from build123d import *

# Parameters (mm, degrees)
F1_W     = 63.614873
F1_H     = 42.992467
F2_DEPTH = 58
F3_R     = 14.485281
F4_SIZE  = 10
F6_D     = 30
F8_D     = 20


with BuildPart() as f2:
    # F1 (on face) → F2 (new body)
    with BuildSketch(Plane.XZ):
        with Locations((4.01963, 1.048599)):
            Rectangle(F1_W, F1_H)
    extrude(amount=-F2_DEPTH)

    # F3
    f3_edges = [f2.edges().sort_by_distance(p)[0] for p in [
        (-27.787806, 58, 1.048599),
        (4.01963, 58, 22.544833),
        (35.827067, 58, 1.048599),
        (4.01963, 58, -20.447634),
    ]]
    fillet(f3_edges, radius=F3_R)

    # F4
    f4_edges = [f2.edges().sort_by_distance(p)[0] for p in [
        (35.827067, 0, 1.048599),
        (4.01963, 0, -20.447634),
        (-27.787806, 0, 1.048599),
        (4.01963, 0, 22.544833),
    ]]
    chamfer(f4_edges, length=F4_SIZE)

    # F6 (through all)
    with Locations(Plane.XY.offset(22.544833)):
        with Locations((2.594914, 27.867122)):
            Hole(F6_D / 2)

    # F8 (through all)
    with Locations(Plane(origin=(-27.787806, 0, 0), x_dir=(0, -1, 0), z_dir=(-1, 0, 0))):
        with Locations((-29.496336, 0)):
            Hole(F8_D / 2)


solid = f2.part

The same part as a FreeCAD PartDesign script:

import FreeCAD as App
import Part
import Sketcher
Q = App.Units.Quantity


def edges_at(feature, points):
    """Names of the edges that pass closest to the given points."""
    edges = feature.Shape.Edges
    near = lambda p: min(range(len(edges)), key=lambda i: edges[i].distToShape(Part.Vertex(*p))[0])
    return sorted({f"Edge{near(p) + 1}" for p in points})

doc = App.newDocument("Part")
body = doc.addObject("PartDesign::Body", "Body")

# Sketch on XZ plane
sketch1 = body.newObject("Sketcher::SketchObject", "Sketch")
sketch1.AttachmentSupport = (doc.getObject("XZ_Plane"), [""])
sketch1.MapMode = "FlatFace"
sketch1.addGeometry(Part.LineSegment(App.Vector(-28, 23, 0), App.Vector(-28, -20, 0)), False)
sketch1.addGeometry(Part.LineSegment(App.Vector(-28, -20, 0), App.Vector(36, -20, 0)), False)
sketch1.addGeometry(Part.LineSegment(App.Vector(36, -20, 0), App.Vector(36, 23, 0)), False)
sketch1.addGeometry(Part.LineSegment(App.Vector(36, 23, 0), App.Vector(-28, 23, 0)), False)
sketch1.addConstraint(Sketcher.Constraint("Coincident", 0, 2, 1, 1))
sketch1.addConstraint(Sketcher.Constraint("Coincident", 1, 2, 2, 1))
sketch1.addConstraint(Sketcher.Constraint("Coincident", 2, 2, 3, 1))
sketch1.addConstraint(Sketcher.Constraint("Coincident", 3, 2, 0, 1))
sketch1.addConstraint(Sketcher.Constraint("Vertical", 0))
sketch1.addConstraint(Sketcher.Constraint("Horizontal", 1))
sketch1.addConstraint(Sketcher.Constraint("Vertical", 2))
sketch1.addConstraint(Sketcher.Constraint("Horizontal", 3))
sketch1.addConstraint(Sketcher.Constraint("DistanceX", 1, 1, 1, 2, Q("63.614873 mm")))
sketch1.addConstraint(Sketcher.Constraint("DistanceY", 0, 2, 0, 1, Q("42.992467 mm")))
sketch1.addConstraint(Sketcher.Constraint("DistanceX", 0, 2, -1, 1, Q("27.787806 mm")))
sketch1.addConstraint(Sketcher.Constraint("DistanceY", 0, 2, -1, 1, Q("20.447634 mm")))
pad1 = body.newObject("PartDesign::Pad", "Pad")
pad1.Profile = sketch1
pad1.Length = 58
pad1.Reversed = True
doc.recompute()

fillet = body.newObject("PartDesign::Fillet", "Fillet")
fillet.Base = (pad1, edges_at(pad1, [
    (-27.788, 58, 1.049),
    (4.02, 58, 22.545),
    (35.827, 58, 1.049),
    (4.02, 58, -20.448),
]))
fillet.Radius = 14.485281
doc.recompute()

chamfer = body.newObject("PartDesign::Chamfer", "Chamfer")
chamfer.Base = (fillet, edges_at(fillet, [
    (35.827, 0, 1.049),
    (4.02, 0, -20.448),
    (-27.788, 0, 1.049),
    (4.02, 0, 22.545),
]))
chamfer.Size = 10

# Sketch on XY plane
sketch2 = body.newObject("Sketcher::SketchObject", "Sketch001")
sketch2.AttachmentSupport = (doc.getObject("XY_Plane"), [""])
sketch2.MapMode = "FlatFace"
sketch2.AttachmentOffset = App.Placement(App.Vector(0, 0, 22.544833), App.Rotation())
sketch2.addGeometry(Part.Circle(App.Vector(3, 28, 0), App.Vector(0, 0, 1), 15), False)
sketch2.addConstraint(Sketcher.Constraint("Diameter", 0, Q("30 mm")))
sketch2.addConstraint(Sketcher.Constraint("DistanceY", -1, 1, 0, 3, Q("27.867122 mm")))
sketch2.addConstraint(Sketcher.Constraint("DistanceX", -1, 1, 0, 3, Q("2.594914 mm")))
doc.recompute()
hole = body.newObject("PartDesign::Hole", "Hole")
hole.Profile = sketch2
hole.ThreadType = "None"
hole.Diameter = 30
hole.DepthType = "ThroughAll"

# Sketch on YZ plane
sketch3 = body.newObject("Sketcher::SketchObject", "Sketch002")
sketch3.AttachmentSupport = (doc.getObject("YZ_Plane"), [""])
sketch3.MapMode = "FlatFace"
sketch3.AttachmentOffset = App.Placement(App.Vector(0, 0, -27.787806), App.Rotation())
sketch3.addGeometry(Part.Circle(App.Vector(29, 0, 0), App.Vector(0, 0, 1), 10), False)
sketch3.addConstraint(Sketcher.Constraint("PointOnObject", 0, 3, -1))
sketch3.addConstraint(Sketcher.Constraint("Diameter", 0, Q("20 mm")))
sketch3.addConstraint(Sketcher.Constraint("DistanceX", -1, 1, 0, 3, Q("29.496336 mm")))
doc.recompute()
hole2 = body.newObject("PartDesign::Hole", "Hole001")
hole2.Profile = sketch3
hole2.ThreadType = "None"
hole2.Diameter = 20
hole2.DepthType = "ThroughAll"
hole2.Reversed = True

doc.recompute()
